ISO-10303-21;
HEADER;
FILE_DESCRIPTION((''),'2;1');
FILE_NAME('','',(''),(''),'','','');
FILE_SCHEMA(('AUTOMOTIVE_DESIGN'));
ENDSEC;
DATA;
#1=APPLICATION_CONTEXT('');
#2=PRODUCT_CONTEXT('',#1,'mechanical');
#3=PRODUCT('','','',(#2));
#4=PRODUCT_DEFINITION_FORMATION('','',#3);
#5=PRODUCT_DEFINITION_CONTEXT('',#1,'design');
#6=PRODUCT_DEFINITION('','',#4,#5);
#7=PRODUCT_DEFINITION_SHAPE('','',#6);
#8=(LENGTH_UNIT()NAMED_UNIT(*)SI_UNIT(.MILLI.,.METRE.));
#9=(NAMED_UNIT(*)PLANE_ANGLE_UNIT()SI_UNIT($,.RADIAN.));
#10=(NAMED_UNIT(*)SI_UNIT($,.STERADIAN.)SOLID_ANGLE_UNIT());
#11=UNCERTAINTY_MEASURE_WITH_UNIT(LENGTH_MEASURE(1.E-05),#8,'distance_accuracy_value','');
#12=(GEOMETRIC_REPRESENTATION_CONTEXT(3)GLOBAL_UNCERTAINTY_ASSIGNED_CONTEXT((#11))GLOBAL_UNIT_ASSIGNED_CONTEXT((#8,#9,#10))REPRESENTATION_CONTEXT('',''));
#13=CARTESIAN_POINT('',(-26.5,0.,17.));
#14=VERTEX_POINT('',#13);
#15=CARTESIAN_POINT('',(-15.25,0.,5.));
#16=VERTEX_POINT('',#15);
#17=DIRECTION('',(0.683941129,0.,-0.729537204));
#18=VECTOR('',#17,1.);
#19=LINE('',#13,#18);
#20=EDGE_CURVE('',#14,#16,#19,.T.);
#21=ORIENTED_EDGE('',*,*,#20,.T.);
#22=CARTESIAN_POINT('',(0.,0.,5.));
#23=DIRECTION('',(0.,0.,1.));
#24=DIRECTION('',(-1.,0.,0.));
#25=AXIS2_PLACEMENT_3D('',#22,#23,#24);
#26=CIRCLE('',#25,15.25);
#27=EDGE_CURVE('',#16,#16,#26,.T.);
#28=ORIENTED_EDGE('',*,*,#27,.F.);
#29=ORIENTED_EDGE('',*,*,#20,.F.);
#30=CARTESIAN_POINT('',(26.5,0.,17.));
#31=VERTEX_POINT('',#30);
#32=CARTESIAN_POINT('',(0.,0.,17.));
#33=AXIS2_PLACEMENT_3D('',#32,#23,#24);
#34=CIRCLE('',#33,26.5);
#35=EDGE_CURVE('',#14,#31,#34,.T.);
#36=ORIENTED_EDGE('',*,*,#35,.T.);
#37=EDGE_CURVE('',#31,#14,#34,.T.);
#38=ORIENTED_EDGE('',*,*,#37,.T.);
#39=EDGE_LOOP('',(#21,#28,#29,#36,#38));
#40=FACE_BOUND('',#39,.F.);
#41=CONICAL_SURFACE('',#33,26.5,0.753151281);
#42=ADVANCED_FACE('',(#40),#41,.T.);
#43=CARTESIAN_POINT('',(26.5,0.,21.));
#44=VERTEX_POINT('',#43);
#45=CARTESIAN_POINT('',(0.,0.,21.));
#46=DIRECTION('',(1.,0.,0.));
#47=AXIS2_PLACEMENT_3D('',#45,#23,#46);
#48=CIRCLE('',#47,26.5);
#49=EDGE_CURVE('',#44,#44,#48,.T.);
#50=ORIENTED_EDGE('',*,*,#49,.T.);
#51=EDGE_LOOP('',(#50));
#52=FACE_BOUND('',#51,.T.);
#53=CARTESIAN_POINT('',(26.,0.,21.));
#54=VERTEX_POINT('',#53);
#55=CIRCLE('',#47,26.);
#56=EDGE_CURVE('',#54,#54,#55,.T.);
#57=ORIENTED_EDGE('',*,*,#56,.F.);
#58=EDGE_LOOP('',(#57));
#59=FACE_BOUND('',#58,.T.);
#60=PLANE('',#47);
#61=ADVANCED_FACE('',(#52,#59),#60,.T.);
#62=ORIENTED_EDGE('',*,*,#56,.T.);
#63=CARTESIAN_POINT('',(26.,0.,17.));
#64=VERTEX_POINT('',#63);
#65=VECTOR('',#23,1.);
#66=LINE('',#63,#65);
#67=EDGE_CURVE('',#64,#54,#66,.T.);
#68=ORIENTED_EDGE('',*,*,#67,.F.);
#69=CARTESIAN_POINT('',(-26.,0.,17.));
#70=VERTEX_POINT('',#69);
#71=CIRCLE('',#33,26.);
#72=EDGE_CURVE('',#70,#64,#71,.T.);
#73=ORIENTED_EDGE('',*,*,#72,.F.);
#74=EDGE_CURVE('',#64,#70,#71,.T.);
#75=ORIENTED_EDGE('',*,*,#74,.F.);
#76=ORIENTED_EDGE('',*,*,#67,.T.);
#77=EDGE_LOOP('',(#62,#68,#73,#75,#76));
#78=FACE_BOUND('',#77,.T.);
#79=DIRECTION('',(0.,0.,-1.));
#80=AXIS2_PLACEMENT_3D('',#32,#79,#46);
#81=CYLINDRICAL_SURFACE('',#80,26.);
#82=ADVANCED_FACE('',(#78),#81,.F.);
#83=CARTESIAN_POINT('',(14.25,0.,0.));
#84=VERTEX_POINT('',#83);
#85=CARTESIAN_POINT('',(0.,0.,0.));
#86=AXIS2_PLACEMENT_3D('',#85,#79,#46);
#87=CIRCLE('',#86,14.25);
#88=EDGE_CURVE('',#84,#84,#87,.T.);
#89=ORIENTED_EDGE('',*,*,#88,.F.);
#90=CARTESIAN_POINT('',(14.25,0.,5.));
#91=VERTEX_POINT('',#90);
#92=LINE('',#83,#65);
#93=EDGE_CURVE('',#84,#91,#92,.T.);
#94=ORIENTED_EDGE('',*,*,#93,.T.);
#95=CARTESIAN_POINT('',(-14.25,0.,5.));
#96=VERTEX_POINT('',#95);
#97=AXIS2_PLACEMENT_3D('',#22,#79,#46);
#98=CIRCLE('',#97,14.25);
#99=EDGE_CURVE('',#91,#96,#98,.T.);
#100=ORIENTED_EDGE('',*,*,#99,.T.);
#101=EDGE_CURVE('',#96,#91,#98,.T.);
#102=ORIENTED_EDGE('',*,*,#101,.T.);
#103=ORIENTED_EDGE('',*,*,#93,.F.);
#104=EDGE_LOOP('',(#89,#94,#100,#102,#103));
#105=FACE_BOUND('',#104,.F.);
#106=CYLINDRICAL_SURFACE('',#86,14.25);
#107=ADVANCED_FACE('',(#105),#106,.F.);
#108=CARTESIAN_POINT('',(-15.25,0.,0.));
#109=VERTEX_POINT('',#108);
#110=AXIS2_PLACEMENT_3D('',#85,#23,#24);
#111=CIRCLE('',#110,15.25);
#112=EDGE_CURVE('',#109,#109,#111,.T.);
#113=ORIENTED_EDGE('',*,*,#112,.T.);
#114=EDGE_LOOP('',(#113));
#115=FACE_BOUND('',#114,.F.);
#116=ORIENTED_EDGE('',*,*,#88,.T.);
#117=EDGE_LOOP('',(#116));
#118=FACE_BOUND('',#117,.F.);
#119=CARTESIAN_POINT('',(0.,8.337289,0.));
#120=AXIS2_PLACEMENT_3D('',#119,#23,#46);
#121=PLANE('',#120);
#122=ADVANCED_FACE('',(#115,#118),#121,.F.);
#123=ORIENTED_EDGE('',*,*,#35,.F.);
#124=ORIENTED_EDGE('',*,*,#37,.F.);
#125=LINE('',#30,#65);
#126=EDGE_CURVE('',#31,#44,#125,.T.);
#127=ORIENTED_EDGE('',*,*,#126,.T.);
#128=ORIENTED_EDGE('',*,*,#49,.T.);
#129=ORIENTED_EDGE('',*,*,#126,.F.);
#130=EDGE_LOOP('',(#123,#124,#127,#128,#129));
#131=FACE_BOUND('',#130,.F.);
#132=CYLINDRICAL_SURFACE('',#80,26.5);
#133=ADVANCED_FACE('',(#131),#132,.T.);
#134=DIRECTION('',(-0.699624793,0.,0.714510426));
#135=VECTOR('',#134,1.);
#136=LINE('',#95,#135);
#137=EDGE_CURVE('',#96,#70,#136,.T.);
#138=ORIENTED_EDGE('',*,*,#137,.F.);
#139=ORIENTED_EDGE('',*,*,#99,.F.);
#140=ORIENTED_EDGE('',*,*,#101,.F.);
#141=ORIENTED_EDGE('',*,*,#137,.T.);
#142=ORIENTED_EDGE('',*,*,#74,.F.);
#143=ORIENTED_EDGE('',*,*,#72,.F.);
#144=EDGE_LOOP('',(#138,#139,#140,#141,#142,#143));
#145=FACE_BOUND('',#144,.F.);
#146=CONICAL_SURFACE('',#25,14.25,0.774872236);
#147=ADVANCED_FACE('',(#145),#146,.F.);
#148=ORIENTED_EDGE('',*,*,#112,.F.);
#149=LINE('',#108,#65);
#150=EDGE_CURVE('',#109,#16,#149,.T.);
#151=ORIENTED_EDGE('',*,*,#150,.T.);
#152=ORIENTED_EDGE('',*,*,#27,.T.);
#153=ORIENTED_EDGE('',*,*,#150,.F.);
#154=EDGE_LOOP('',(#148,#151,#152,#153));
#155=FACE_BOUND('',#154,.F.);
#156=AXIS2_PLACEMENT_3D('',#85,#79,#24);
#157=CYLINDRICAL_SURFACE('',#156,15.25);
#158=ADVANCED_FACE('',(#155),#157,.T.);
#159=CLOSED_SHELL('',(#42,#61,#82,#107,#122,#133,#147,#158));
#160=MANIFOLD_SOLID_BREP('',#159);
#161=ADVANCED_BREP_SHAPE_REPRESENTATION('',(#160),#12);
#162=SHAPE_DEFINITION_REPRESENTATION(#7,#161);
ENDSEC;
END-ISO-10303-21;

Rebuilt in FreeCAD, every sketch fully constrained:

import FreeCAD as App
import Part
import Sketcher

V = App.Vector


def add_polygon(sketch, points):
    """Adds a closed chain of lines whose ends are joined by coincident constraints."""
    first, n = sketch.GeometryCount, len(points)
    for a, b in zip(points, points[1:] + points[:1]):
        sketch.addGeometry(Part.LineSegment(App.Vector(*a, 0), App.Vector(*b, 0)), False)
    for i in range(n):
        sketch.addConstraint(Sketcher.Constraint("Coincident", first + i, 2, first + (i + 1) % n, 1))

doc = App.newDocument("Part")
body = doc.addObject("PartDesign::Body", "Body")

# Sketch on XY plane
sketch1 = doc.addObject("Sketcher::SketchObject", "Sketch")
body.addObject(sketch1)
sketch1.AttachmentSupport = (doc.XY_Plane, [""])
sketch1.MapMode = "FlatFace"
sketch1.addGeometry([
    Part.Circle(V(0, 0, 0), V(0, 0, 1), 15.25),
    Part.Circle(V(0, 0, 0), V(0, 0, 1), 14.25),
], False)
sketch1.addConstraint([
    Sketcher.Constraint("Coincident", 0, 3, -1, 1),
    Sketcher.Constraint("Coincident", 1, 3, -1, 1),
    Sketcher.Constraint("Diameter", 0, 30.5),
    Sketcher.Constraint("Diameter", 1, 28.5),
])
pad1 = doc.addObject("PartDesign::Pad", "Pad")
body.addObject(pad1)
pad1.Profile = sketch1
pad1.Length = 5

# Sketch on XZ plane
sketch2 = doc.addObject("Sketcher::SketchObject", "Sketch001")
body.addObject(sketch2)
sketch2.AttachmentSupport = (doc.XZ_Plane, [""])
sketch2.MapMode = "FlatFace"
add_polygon(sketch2, [(-26.5, 17), (-15.25, 5), (-14.25, 5), (-26, 17)])  # lines 0-3
sketch2.addConstraint([
    Sketcher.Constraint("Horizontal", 1),
    Sketcher.Constraint("Horizontal", 3),
    Sketcher.Constraint("DistanceX", 1, 1, 1, 2, 1.0),
    Sketcher.Constraint("DistanceX", 3, 2, 3, 1, 0.5),
    Sketcher.Constraint("DistanceY", -1, 1, 0, 2, 5.0),
    Sketcher.Constraint("DistanceX", 2, 2, -1, 1, 26.0),
    Sketcher.Constraint("DistanceY", -1, 1, 2, 2, 17.0),
    Sketcher.Constraint("DistanceX", 0, 2, -1, 1, 15.25),
])
revolution = doc.addObject("PartDesign::Revolution", "Revolution")
body.addObject(revolution)
revolution.Profile = sketch2
revolution.ReferenceAxis = (sketch2, ["V_Axis"])
revolution.Angle = 360

# Sketch on XY plane
sketch3 = doc.addObject("Sketcher::SketchObject", "Sketch002")
body.addObject(sketch3)
sketch3.AttachmentSupport = (doc.XY_Plane, [""])
sketch3.MapMode = "FlatFace"
sketch3.AttachmentOffset = App.Placement(V(0, 0, 17), App.Rotation())
sketch3.addGeometry([
    Part.Circle(V(0, 0, 0), V(0, 0, 1), 26.5),
    Part.Circle(V(0, 0, 0), V(0, 0, 1), 26),
], False)
sketch3.addConstraint([
    Sketcher.Constraint("Coincident", 0, 3, -1, 1),
    Sketcher.Constraint("Coincident", 1, 3, -1, 1),
    Sketcher.Constraint("Diameter", 0, 53.0),
    Sketcher.Constraint("Diameter", 1, 52.0),
])
pad2 = doc.addObject("PartDesign::Pad", "Pad001")
body.addObject(pad2)
pad2.Profile = sketch3
pad2.Length = 4

doc.recompute()
